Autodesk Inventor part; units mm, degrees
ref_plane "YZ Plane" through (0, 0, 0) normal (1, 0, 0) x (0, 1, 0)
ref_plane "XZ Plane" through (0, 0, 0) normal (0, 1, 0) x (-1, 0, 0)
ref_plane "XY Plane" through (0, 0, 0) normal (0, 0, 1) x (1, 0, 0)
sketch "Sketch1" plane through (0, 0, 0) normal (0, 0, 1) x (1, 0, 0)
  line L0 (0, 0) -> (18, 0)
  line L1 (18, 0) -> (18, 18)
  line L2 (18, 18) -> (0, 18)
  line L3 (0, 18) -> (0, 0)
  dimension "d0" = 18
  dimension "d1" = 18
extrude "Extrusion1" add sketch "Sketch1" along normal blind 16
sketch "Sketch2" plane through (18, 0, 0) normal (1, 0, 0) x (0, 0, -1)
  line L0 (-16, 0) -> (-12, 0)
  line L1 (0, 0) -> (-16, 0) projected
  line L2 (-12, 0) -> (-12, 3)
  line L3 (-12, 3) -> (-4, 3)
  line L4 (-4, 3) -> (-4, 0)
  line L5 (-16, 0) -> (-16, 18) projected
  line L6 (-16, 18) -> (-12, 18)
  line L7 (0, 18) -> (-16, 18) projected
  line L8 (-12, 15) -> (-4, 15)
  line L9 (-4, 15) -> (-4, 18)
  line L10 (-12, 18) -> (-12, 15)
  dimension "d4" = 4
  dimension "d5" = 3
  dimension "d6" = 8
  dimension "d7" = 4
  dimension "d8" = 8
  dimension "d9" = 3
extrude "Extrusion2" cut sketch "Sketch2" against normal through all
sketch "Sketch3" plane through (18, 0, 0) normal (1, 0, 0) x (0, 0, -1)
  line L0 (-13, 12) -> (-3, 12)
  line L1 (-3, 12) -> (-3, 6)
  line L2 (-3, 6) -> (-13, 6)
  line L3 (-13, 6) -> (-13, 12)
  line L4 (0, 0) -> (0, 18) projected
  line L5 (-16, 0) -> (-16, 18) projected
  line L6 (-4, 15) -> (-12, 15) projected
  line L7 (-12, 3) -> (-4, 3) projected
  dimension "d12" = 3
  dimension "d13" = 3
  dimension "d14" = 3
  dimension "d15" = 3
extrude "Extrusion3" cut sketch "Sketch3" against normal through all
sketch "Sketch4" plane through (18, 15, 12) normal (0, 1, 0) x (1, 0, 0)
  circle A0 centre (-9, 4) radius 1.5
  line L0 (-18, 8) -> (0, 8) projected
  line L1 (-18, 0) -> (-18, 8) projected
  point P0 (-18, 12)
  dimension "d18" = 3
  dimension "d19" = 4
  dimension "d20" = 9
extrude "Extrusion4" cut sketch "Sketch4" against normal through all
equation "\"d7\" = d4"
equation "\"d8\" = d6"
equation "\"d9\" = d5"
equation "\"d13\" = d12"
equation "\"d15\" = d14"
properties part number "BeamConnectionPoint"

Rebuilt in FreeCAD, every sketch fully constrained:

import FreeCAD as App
import Part
import Sketcher

V = App.Vector

doc = App.newDocument("Part")
params = doc.addObject("Spreadsheet::Sheet", "Params")
for row, (alias, value) in enumerate([
    ("sketch1_width", "18 mm"),
    ("pad1_length", "16 mm"),
    ("sketch2_width", "3 mm"),
    ("sketch2_height", "8 mm"),
    ("sketch3_width", "6 mm"),
    ("sketch3_height", "10 mm"),
    ("sketch4_diameter", "3 mm"),
], start=1):
    params.set(f"A{row}", alias)
    params.set(f"B{row}", "=" + value)
    params.setAlias(f"B{row}", alias)

body = doc.addObject("PartDesign::Body", "Body")

# Sketch on XY plane
sketch1 = doc.addObject("Sketcher::SketchObject", "Sketch")
body.addObject(sketch1)
sketch1.AttachmentSupport = (doc.XY_Plane, [""])
sketch1.MapMode = "FlatFace"
sketch1.addGeometry([
    Part.LineSegment(V(0, 18, 0), V(0, 0, 0)),
    Part.LineSegment(V(0, 0, 0), V(18, 0, 0)),
    Part.LineSegment(V(18, 0, 0), V(18, 18, 0)),
    Part.LineSegment(V(18, 18, 0), V(0, 18, 0)),
], False)
sketch1.addConstraint([
    Sketcher.Constraint("Coincident", 0, 2, 1, 1),
    Sketcher.Constraint("Coincident", 1, 2, 2, 1),
    Sketcher.Constraint("Coincident", 2, 2, 3, 1),
    Sketcher.Constraint("Coincident", 3, 2, 0, 1),
    Sketcher.Constraint("Vertical", 0),
    Sketcher.Constraint("Horizontal", 1),
    Sketcher.Constraint("Vertical", 2),
    Sketcher.Constraint("Horizontal", 3),
    Sketcher.Constraint("Coincident", 0, 2, -1, 1),
    Sketcher.Constraint("Equal", 3, 0),
    Sketcher.Constraint("DistanceX", 1, 1, 1, 2, 18.0),
])
sketch1.setExpression("Constraints[10]", "Params.sketch1_width")
pad1 = doc.addObject("PartDesign::Pad", "Pad")
body.addObject(pad1)
pad1.Profile = sketch1
pad1.setExpression("Length", "Params.pad1_length")

# Sketch on YZ plane
sketch2 = doc.addObject("Sketcher::SketchObject", "Sketch001")
body.addObject(sketch2)
sketch2.AttachmentSupport = (doc.YZ_Plane, [""])
sketch2.MapMode = "FlatFace"
sketch2.AttachmentOffset = App.Placement(V(0, 0, 18), App.Rotation())
sketch2.addGeometry([
    Part.LineSegment(V(3, 12, 0), V(0, 12, 0)),  # 0
    Part.LineSegment(V(0, 12, 0), V(0, 4, 0)),  # 1
    Part.LineSegment(V(0, 4, 0), V(3, 4, 0)),  # 2
    Part.LineSegment(V(3, 4, 0), V(3, 12, 0)),  # 3
    Part.LineSegment(V(18, 4, 0), V(18, 12, 0)),  # 4
    Part.LineSegment(V(18, 12, 0), V(15, 12, 0)),  # 5
    Part.LineSegment(V(15, 12, 0), V(15, 4, 0)),  # 6
    Part.LineSegment(V(15, 4, 0), V(18, 4, 0)),  # 7
], False)
sketch2.addConstraint([
    Sketcher.Constraint("Coincident", 0, 2, 1, 1),
    Sketcher.Constraint("Coincident", 1, 2, 2, 1),
    Sketcher.Constraint("Coincident", 2, 2, 3, 1),
    Sketcher.Constraint("Coincident", 3, 2, 0, 1),
    Sketcher.Constraint("Coincident", 4, 2, 5, 1),
    Sketcher.Constraint("Coincident", 5, 2, 6, 1),
    Sketcher.Constraint("Coincident", 6, 2, 7, 1),
    Sketcher.Constraint("Coincident", 7, 2, 4, 1),
    Sketcher.Constraint("Horizontal", 0),
    Sketcher.Constraint("Vertical", 1),
    Sketcher.Constraint("Horizontal", 2),
    Sketcher.Constraint("Vertical", 3),
    Sketcher.Constraint("Vertical", 4),
    Sketcher.Constraint("Horizontal", 5),
    Sketcher.Constraint("Vertical", 6),
    Sketcher.Constraint("Horizontal", 7),
    Sketcher.Constraint("PointOnObject", 0, 2, -2),
    Sketcher.Constraint("Horizontal", 3, 2, 4, 2),
    Sketcher.Constraint("Horizontal", 2, 2, 6, 2),
    Sketcher.Constraint("Equal", 2, 5),
    Sketcher.Constraint("DistanceX", 0, 2, 0, 1, 3.0),
    Sketcher.Constraint("DistanceY", 1, 2, 1, 1, 8.0),
    Sketcher.Constraint("DistanceY", -1, 1, 1, 2, 4.0),
    Sketcher.Constraint("DistanceX", -1, 1, 4, 2, 18.0),
])
sketch2.setExpression("Constraints[20]", "Params.sketch2_width")
sketch2.setExpression("Constraints[21]", "Params.sketch2_height")
pocket1 = doc.addObject("PartDesign::Pocket", "Pocket")
body.addObject(pocket1)
pocket1.Profile = sketch2
pocket1.Type = "ThroughAll"

# Sketch on YZ plane
sketch3 = doc.addObject("Sketcher::SketchObject", "Sketch002")
body.addObject(sketch3)
sketch3.AttachmentSupport = (doc.YZ_Plane, [""])
sketch3.MapMode = "FlatFace"
sketch3.AttachmentOffset = App.Placement(V(0, 0, 18), App.Rotation())
sketch3.addGeometry([
    Part.LineSegment(V(12, 3, 0), V(12, 13, 0)),
    Part.LineSegment(V(12, 13, 0), V(6, 13, 0)),
    Part.LineSegment(V(6, 13, 0), V(6, 3, 0)),
    Part.LineSegment(V(6, 3, 0), V(12, 3, 0)),
], False)
sketch3.addConstraint([
    Sketcher.Constraint("Coincident", 0, 2, 1, 1),
    Sketcher.Constraint("Coincident", 1, 2, 2, 1),
    Sketcher.Constraint("Coincident", 2, 2, 3, 1),
    Sketcher.Constraint("Coincident", 3, 2, 0, 1),
    Sketcher.Constraint("Vertical", 0),
    Sketcher.Constraint("Horizontal", 1),
    Sketcher.Constraint("Vertical", 2),
    Sketcher.Constraint("Horizontal", 3),
    Sketcher.Constraint("DistanceY", -1, 1, 2, 2, 3.0),
    Sketcher.Constraint("DistanceX", 1, 2, 1, 1, 6.0),
    Sketcher.Constraint("DistanceY", 0, 1, 0, 2, 10.0),
    Sketcher.Constraint("DistanceX", -1, 1, 0, 2, 12.0),
])
sketch3.setExpression("Constraints[9]", "Params.sketch3_width")
sketch3.setExpression("Constraints[10]", "Params.sketch3_height")
pocket2 = doc.addObject("PartDesign::Pocket", "Pocket001")
body.addObject(pocket2)
pocket2.Profile = sketch3
pocket2.Type = "ThroughAll"

# Sketch on XZ plane
sketch4 = doc.addObject("Sketcher::SketchObject", "Sketch003")
body.addObject(sketch4)
sketch4.AttachmentSupport = (doc.XZ_Plane, [""])
sketch4.MapMode = "FlatFace"
sketch4.AttachmentOffset = App.Placement(V(0, 0, -15), App.Rotation())
sketch4.addGeometry(Part.Circle(V(9, 8, 0), V(0, 0, 1), 1.5), False)
sketch4.addConstraint([
    Sketcher.Constraint("Diameter", 0, 3.0),
    Sketcher.Constraint("DistanceX", -1, 1, 0, 3, 9.0),
    Sketcher.Constraint("DistanceY", -1, 1, 0, 3, 8.0),
])
sketch4.setExpression("Constraints[0]", "Params.sketch4_diameter")
pocket3 = doc.addObject("PartDesign::Pocket", "Pocket002")
body.addObject(pocket3)
pocket3.Profile = sketch4
pocket3.Type = "ThroughAll"
pocket3.Reversed = True

doc.recompute()
